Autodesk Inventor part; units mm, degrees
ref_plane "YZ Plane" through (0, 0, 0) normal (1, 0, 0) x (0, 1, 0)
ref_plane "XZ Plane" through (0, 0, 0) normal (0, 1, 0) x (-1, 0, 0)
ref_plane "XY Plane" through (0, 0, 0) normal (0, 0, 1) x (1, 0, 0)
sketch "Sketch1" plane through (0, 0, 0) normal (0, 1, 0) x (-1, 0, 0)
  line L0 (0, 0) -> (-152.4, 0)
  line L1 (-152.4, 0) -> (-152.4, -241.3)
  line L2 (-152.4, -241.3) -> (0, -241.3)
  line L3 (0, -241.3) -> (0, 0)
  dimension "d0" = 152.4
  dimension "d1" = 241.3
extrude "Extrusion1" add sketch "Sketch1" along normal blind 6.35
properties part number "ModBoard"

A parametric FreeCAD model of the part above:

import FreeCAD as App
import Part
import Sketcher
Q = App.Units.Quantity


def add_polygon(sketch, points):
    """Adds a closed chain of lines whose ends are joined by coincident constraints."""
    first, n = sketch.GeometryCount, len(points)
    for a, b in zip(points, points[1:] + points[:1]):
        sketch.addGeometry(Part.LineSegment(App.Vector(*a, 0), App.Vector(*b, 0)), False)
    for i in range(n):
        sketch.addConstraint(Sketcher.Constraint("Coincident", first + i, 2, first + (i + 1) % n, 1))

doc = App.newDocument("Part")
params = doc.addObject("Spreadsheet::Sheet", "Params")
for row, (alias, value) in enumerate([
    ("sketch1_width", "6 in"),
    ("sketch1_height", "9.5 in"),
    ("pad1_length", "0.25 in"),
], start=1):
    params.set(f"A{row}", alias)
    params.set(f"B{row}", "=" + value)
    params.setAlias(f"B{row}", alias)

body = doc.addObject("PartDesign::Body", "Body")

# Sketch on XZ plane
sketch1 = body.newObject("Sketcher::SketchObject", "Sketch")
sketch1.AttachmentSupport = (doc.getObject("XZ_Plane"), [""])
sketch1.MapMode = "FlatFace"
add_polygon(sketch1, [(0, -241), (0, 0), (152, 0), (152, -241)])  # lines 0-3
sketch1.addConstraint(Sketcher.Constraint("Vertical", 0))
sketch1.addConstraint(Sketcher.Constraint("Horizontal", 1))
sketch1.addConstraint(Sketcher.Constraint("Vertical", 2))
sketch1.addConstraint(Sketcher.Constraint("Horizontal", 3))
sketch1.addConstraint(Sketcher.Constraint("Coincident", 0, 2, -1, 1))
sketch1.addConstraint(Sketcher.Constraint("DistanceX", 1, 1, 1, 2, Q("6 in")))
sketch1.addConstraint(Sketcher.Constraint("DistanceY", 0, 1, 0, 2, Q("9.5 in")))
sketch1.setExpression("Constraints[9]", "Params.sketch1_width")
sketch1.setExpression("Constraints[10]", "Params.sketch1_height")
pad1 = body.newObject("PartDesign::Pad", "Pad")
pad1.Profile = sketch1
pad1.setExpression("Length", "Params.pad1_length")
pad1.Reversed = True

doc.recompute()
